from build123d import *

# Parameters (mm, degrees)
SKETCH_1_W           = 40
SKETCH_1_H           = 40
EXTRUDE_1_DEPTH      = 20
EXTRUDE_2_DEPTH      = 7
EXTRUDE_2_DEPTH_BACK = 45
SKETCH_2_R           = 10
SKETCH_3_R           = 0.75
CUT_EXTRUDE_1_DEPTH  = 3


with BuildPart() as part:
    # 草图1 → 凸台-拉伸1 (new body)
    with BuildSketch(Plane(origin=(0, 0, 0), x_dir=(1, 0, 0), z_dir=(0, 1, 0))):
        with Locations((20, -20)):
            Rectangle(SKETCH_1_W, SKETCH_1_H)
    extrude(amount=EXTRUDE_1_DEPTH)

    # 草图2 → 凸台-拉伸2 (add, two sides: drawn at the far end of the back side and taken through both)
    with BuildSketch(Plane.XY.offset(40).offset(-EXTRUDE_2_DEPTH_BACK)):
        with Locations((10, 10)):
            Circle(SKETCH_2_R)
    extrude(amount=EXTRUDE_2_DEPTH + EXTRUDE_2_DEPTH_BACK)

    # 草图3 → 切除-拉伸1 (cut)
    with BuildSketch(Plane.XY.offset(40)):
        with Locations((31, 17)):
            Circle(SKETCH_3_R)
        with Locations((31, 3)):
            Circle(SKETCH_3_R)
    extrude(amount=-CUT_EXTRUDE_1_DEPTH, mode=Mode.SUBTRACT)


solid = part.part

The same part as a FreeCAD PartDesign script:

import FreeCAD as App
import Part
import Sketcher

V = App.Vector
Q = App.Units.Quantity

doc = App.newDocument("Part")
body = doc.addObject("PartDesign::Body", "Body")

# Sketch on XZ plane
sketch1 = doc.addObject("Sketcher::SketchObject", "Sketch")
body.addObject(sketch1)
sketch1.AttachmentSupport = (doc.XZ_Plane, [""])
sketch1.MapMode = "FlatFace"
sketch1.addGeometry(Part.LineSegment(V(0, 0, 0), V(0, 40, 0)), False)
sketch1.addGeometry(Part.LineSegment(V(0, 40, 0), V(40, 40, 0)), False)
sketch1.addGeometry(Part.LineSegment(V(40, 40, 0), V(40, 0, 0)), False)
sketch1.addGeometry(Part.LineSegment(V(40, 0, 0), V(0, 0, 0)), False)
sketch1.addConstraint(Sketcher.Constraint("Coincident", 0, 2, 1, 1))
sketch1.addConstraint(Sketcher.Constraint("Coincident", 1, 2, 2, 1))
sketch1.addConstraint(Sketcher.Constraint("Coincident", 2, 2, 3, 1))
sketch1.addConstraint(Sketcher.Constraint("Coincident", 3, 2, 0, 1))
sketch1.addConstraint(Sketcher.Constraint("Vertical", 0))
sketch1.addConstraint(Sketcher.Constraint("Horizontal", 1))
sketch1.addConstraint(Sketcher.Constraint("Vertical", 2))
sketch1.addConstraint(Sketcher.Constraint("Horizontal", 3))
sketch1.addConstraint(Sketcher.Constraint("Coincident", 3, 2, -1, 1))
sketch1.addConstraint(Sketcher.Constraint("Equal", 3, 0))
sketch1.addConstraint(Sketcher.Constraint("DistanceX", 1, 1, 1, 2, Q("40 mm")))
pad1 = doc.addObject("PartDesign::Pad", "Pad")
body.addObject(pad1)
pad1.Profile = sketch1
pad1.Length = 20
pad1.Reversed = True

# Sketch on XY plane
sketch2 = doc.addObject("Sketcher::SketchObject", "Sketch001")
body.addObject(sketch2)
sketch2.AttachmentSupport = (doc.XY_Plane, [""])
sketch2.MapMode = "FlatFace"
sketch2.AttachmentOffset = App.Placement(V(0, 0, 40), App.Rotation())
sketch2.addGeometry(Part.Circle(V(10, 10, 0), V(0, 0, 1), 10), False)
sketch2.addConstraint(Sketcher.Constraint("Diameter", 0, Q("20 mm")))
sketch2.addConstraint(Sketcher.Constraint("DistanceX", -1, 1, 0, 3, Q("10 mm")))
sketch2.addConstraint(Sketcher.Constraint("DistanceY", -1, 1, 0, 3, Q("10 mm")))
pad2 = doc.addObject("PartDesign::Pad", "Pad001")
body.addObject(pad2)
pad2.Profile = sketch2
pad2.Type = "TwoLengths"
pad2.Length = 7
pad2.Length2 = 45

# Sketch on XY plane
sketch3 = doc.addObject("Sketcher::SketchObject", "Sketch002")
body.addObject(sketch3)
sketch3.AttachmentSupport = (doc.XY_Plane, [""])
sketch3.MapMode = "FlatFace"
sketch3.AttachmentOffset = App.Placement(V(0, 0, 40), App.Rotation())
sketch3.addGeometry(Part.Circle(V(31, 17, 0), V(0, 0, 1), 0.8), False)
sketch3.addGeometry(Part.Circle(V(31, 3, 0), V(0, 0, 1), 0.8), False)
sketch3.addConstraint(Sketcher.Constraint("Equal", 0, 1))
sketch3.addConstraint(Sketcher.Constraint("Vertical", 0, 3, 1, 3))
sketch3.addConstraint(Sketcher.Constraint("Diameter", 0, Q("1.5 mm")))
sketch3.addConstraint(Sketcher.Constraint("DistanceX", -1, 1, 0, 3, Q("31 mm")))
sketch3.addConstraint(Sketcher.Constraint("DistanceY", -1, 1, 0, 3, Q("17 mm")))
sketch3.addConstraint(Sketcher.Constraint("DistanceY", -1, 1, 1, 3, Q("3 mm")))
pocket1 = doc.addObject("PartDesign::Pocket", "Pocket")
body.addObject(pocket1)
pocket1.Profile = sketch3
pocket1.Length = 3

doc.recompute()
